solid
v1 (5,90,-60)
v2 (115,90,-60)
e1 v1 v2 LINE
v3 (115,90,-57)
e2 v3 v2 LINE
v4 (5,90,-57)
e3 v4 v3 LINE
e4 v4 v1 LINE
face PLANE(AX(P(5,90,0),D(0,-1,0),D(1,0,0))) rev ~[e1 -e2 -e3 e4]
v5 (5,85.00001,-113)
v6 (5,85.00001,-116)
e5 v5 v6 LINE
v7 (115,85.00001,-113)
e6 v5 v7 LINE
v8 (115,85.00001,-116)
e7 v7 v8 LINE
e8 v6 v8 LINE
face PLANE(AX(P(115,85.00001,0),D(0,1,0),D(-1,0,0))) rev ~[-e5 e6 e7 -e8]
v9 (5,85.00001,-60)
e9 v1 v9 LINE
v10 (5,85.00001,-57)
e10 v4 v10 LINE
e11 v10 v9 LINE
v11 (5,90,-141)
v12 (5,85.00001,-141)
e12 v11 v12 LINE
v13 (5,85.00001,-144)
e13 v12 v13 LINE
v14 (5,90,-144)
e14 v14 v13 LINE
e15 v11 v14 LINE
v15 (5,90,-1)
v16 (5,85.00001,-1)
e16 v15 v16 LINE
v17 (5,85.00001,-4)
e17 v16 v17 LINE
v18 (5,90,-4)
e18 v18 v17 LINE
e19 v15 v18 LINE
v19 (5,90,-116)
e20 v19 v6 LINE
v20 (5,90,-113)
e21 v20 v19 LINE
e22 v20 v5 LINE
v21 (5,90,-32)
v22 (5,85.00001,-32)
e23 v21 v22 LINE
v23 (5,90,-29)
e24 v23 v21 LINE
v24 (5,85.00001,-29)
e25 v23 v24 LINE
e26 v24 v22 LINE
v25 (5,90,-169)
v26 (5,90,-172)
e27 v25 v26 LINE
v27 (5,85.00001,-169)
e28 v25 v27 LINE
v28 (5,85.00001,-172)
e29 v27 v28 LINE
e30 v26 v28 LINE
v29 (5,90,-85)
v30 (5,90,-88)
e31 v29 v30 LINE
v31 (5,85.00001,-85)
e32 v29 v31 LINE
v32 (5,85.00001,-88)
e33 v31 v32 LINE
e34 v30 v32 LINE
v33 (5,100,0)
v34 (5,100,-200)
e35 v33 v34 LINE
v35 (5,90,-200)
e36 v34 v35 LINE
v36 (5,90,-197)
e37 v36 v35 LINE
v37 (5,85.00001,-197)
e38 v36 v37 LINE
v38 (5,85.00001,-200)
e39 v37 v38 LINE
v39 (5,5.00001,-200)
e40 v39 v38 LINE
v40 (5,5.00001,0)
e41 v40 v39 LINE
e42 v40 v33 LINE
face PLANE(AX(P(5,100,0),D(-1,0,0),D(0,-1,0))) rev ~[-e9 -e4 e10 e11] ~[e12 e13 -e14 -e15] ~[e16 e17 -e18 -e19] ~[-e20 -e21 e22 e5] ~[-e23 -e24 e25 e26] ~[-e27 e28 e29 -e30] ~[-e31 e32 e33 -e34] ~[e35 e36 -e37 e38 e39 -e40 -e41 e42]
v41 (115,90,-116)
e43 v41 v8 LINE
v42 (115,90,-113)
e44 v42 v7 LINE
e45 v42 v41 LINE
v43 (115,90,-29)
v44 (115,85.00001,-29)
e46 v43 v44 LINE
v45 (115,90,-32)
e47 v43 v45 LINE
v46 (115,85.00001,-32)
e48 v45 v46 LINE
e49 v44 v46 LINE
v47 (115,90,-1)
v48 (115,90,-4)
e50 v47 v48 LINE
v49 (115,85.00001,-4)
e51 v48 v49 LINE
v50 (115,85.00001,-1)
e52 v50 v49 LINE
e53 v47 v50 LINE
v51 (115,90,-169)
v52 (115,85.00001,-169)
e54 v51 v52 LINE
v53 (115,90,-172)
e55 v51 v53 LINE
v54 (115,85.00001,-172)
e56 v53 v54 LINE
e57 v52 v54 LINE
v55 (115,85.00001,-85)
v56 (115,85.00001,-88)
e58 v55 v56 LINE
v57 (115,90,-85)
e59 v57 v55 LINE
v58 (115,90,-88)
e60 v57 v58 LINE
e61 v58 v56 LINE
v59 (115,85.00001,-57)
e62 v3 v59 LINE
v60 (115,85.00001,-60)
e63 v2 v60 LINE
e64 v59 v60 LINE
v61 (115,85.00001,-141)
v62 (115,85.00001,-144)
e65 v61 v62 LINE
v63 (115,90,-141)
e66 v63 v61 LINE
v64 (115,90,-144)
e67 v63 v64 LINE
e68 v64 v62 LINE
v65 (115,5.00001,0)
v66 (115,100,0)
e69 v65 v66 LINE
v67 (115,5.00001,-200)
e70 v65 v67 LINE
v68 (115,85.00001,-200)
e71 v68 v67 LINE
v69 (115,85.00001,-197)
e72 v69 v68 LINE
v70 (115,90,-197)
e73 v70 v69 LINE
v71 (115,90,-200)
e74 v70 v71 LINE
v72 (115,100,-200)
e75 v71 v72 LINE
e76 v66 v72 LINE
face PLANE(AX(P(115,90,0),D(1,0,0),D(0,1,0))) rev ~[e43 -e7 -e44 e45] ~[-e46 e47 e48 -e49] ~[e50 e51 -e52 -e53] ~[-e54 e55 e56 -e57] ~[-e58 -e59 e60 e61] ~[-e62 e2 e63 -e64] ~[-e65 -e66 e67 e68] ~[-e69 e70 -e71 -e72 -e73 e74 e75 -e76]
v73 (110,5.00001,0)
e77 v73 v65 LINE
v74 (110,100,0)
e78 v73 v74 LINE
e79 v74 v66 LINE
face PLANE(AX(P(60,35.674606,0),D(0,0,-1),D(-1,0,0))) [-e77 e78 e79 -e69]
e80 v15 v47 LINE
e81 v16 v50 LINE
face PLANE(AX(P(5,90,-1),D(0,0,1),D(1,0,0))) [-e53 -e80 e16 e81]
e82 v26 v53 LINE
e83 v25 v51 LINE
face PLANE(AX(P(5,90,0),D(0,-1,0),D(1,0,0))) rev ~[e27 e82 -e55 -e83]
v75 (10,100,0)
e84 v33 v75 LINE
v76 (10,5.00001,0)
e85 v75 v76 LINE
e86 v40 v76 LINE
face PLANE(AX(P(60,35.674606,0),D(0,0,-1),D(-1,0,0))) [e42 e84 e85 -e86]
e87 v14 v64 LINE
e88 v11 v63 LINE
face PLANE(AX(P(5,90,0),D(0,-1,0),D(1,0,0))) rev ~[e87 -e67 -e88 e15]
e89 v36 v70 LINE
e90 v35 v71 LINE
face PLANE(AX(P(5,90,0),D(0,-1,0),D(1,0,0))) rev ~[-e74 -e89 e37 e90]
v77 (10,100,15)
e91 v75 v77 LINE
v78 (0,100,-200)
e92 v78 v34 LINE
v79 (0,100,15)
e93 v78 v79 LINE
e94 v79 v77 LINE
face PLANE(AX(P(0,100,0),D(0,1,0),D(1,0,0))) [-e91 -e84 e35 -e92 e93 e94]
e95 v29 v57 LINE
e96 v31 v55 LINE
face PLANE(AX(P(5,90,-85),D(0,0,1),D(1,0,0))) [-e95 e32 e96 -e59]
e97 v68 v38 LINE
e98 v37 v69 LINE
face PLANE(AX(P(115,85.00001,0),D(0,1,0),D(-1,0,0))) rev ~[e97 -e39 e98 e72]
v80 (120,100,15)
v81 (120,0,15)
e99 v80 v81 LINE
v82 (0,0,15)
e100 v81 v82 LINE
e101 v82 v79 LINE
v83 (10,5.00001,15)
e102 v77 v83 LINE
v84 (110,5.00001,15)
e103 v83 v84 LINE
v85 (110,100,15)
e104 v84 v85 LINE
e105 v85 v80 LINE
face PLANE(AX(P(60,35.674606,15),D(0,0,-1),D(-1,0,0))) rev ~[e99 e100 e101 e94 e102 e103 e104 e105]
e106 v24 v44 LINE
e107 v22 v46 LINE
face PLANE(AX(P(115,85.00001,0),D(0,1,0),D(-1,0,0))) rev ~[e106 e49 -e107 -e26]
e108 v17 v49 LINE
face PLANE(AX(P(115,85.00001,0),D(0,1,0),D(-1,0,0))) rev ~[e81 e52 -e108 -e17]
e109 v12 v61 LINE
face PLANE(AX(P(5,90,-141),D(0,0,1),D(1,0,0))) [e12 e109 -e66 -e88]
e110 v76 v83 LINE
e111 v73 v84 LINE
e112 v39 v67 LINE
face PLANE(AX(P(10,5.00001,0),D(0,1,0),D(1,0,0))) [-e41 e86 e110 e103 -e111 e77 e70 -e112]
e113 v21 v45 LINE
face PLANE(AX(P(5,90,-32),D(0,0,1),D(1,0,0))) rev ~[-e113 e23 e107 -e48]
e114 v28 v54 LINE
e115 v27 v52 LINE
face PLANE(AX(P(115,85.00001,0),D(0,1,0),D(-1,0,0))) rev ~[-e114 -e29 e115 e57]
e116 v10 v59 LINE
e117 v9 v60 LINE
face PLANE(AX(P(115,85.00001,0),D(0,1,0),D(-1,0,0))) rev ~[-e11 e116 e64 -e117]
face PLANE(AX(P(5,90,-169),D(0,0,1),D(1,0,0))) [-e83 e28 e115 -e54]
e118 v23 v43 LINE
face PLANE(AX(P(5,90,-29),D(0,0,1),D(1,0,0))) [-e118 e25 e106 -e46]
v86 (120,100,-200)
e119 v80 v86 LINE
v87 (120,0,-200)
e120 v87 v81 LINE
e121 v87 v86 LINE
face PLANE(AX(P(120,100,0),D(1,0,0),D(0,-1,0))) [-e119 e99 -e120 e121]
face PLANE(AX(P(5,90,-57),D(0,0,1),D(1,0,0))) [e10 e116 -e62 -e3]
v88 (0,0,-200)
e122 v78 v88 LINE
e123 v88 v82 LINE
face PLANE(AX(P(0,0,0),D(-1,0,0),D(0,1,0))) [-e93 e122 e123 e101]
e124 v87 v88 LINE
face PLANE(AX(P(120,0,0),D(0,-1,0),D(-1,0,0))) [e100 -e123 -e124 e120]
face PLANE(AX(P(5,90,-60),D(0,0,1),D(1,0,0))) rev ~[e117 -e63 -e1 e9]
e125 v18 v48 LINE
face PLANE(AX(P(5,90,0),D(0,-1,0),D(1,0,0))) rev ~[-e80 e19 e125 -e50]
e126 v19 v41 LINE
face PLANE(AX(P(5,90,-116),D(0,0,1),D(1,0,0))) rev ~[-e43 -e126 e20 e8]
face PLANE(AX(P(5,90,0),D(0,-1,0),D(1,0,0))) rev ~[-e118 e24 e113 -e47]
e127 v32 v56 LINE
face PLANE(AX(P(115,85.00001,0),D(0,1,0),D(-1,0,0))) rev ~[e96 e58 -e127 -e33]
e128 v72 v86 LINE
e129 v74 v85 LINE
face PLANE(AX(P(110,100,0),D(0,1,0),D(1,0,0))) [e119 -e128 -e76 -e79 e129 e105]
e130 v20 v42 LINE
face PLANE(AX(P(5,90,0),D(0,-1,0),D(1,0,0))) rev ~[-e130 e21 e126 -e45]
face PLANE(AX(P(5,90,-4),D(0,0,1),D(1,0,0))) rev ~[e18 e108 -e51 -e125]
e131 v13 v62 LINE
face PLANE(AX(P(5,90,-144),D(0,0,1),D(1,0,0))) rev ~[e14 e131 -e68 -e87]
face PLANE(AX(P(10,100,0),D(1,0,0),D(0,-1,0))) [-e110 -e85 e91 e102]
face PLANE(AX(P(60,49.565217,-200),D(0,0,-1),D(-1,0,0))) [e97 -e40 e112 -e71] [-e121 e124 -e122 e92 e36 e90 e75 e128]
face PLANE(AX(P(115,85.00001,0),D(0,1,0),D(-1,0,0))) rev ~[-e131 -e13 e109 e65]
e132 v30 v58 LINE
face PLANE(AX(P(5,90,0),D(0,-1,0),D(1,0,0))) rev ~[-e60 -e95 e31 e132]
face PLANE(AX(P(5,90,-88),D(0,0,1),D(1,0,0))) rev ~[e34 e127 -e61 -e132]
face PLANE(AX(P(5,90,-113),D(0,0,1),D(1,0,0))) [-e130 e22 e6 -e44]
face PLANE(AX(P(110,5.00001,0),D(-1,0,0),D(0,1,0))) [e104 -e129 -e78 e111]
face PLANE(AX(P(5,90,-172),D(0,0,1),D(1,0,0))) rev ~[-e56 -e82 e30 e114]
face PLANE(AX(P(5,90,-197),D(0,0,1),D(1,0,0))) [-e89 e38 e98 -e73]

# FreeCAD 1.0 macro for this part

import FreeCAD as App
import Part
import Sketcher
from FreeCAD import Vector


def add_polygon(sketch, points):
    """Adds a closed chain of lines whose ends are joined by coincident constraints."""
    first, n = sketch.GeometryCount, len(points)
    for a, b in zip(points, points[1:] + points[:1]):
        sketch.addGeometry(Part.LineSegment(App.Vector(*a, 0), App.Vector(*b, 0)), False)
    for i in range(n):
        sketch.addConstraint(Sketcher.Constraint("Coincident", first + i, 2, first + (i + 1) % n, 1))

doc = App.newDocument("Part")
params = doc.addObject("Spreadsheet::Sheet", "Params")
for row, (alias, value) in enumerate([
    ("sketch1_width", "110 mm"),
    ("sketch1_width2", "5 mm"),
    ("sketch1_height", "10 mm"),
    ("sketch1_height2", "100 mm"),
    ("sketch1_height3", "80 mm"),
    ("pad1_length", "200 mm"),
    ("sketch2_width", "110 mm"),
    ("sketch2_height", "25 mm"),
    ("pocket1_length", "50 mm"),
    ("sketch3_width", "10 mm"),
    ("sketch3_width2", "120 mm"),
    ("pad2_length", "15 mm"),
], start=1):
    params.set(f"A{row}", alias)
    params.set(f"B{row}", "=" + value)
    params.setAlias(f"B{row}", alias)

body = doc.addObject("PartDesign::Body", "Body")

sketch1 = body.newObject("Sketcher::SketchObject", "Sketch")
sketch1.AttachmentSupport = (doc.getObject("XY_Plane"), [""])
sketch1.MapMode = "FlatFace"
add_polygon(sketch1, [(115, 100), (115, 90), (5, 90), (5, 100), (0, 100), (0, 0), (120, 0), (120, 100)])
add_polygon(sketch1, [(115, 5.00001), (5, 5.00001), (5, 85.00001), (115, 85.00001)])
sketch1.addConstraint([
    Sketcher.Constraint("Vertical", 0),
    Sketcher.Constraint("Horizontal", 1),
    Sketcher.Constraint("Vertical", 2),
    Sketcher.Constraint("Horizontal", 3),
    Sketcher.Constraint("Vertical", 4),
    Sketcher.Constraint("Horizontal", 5),
    Sketcher.Constraint("Vertical", 6),
    Sketcher.Constraint("Horizontal", 7),
    Sketcher.Constraint("Horizontal", 8),
    Sketcher.Constraint("Vertical", 9),
    Sketcher.Constraint("Horizontal", 10),
    Sketcher.Constraint("Vertical", 11),
    Sketcher.Constraint("Coincident", 4, 2, -1, 1),
    Sketcher.Constraint("Horizontal", 3, 2, 6, 2),
    Sketcher.Constraint("Vertical", 2, 2, 8, 2),
    Sketcher.Constraint("Vertical", 7, 2, 10, 2),
    Sketcher.Constraint("Equal", 3, 7),
    Sketcher.Constraint("DistanceX", 1, 2, 1, 1, 110.0),
    Sketcher.Constraint("DistanceX", 3, 2, 3, 1, 5.0),
    Sketcher.Constraint("DistanceY", 0, 2, 0, 1, 10.0),
    Sketcher.Constraint("DistanceY", 4, 2, 4, 1, 100.0),
    Sketcher.Constraint("DistanceY", 9, 1, 9, 2, 80.0),
    Sketcher.Constraint("DistanceY", -1, 1, 8, 2, 5.00001),
])
sketch1.setExpression("Constraints[29]", "Params.sketch1_width")
sketch1.setExpression("Constraints[30]", "Params.sketch1_width2")
sketch1.setExpression("Constraints[31]", "Params.sketch1_height")
sketch1.setExpression("Constraints[32]", "Params.sketch1_height2")
sketch1.setExpression("Constraints[33]", "Params.sketch1_height3")
pad1 = body.newObject("PartDesign::Pad", "Pad")
pad1.Profile = sketch1
pad1.setExpression("Length", "Params.pad1_length")
pad1.Reversed = True

sketch2 = body.newObject("Sketcher::SketchObject", "Sketch001")
sketch2.AttachmentSupport = (doc.getObject("XZ_Plane"), [""])
sketch2.MapMode = "FlatFace"
sketch2.AttachmentOffset = App.Placement(Vector(0, 0, -90), App.Rotation())
add_polygon(sketch2, [(5, -197), (5, -172), (115, -172), (115, -197)])
add_polygon(sketch2, [(5, -169), (5, -144), (115, -144), (115, -169)])
add_polygon(sketch2, [(5, -141), (5, -116), (115, -116), (115, -141)])
add_polygon(sketch2, [(5, -113), (5, -88), (115, -88), (115, -113)])
add_polygon(sketch2, [(5, -85), (5, -60), (115, -60), (115, -85)])
add_polygon(sketch2, [(5, -57), (5, -32), (115, -32), (115, -57)])
add_polygon(sketch2, [(5, -29), (5, -4), (115, -4), (115, -29)])
add_polygon(sketch2, [(5, -1), (5, 24), (115, 24), (115, -1)])
sketch2.addConstraint([
    Sketcher.Constraint("Vertical", 0),
    Sketcher.Constraint("Horizontal", 1),
    Sketcher.Constraint("Vertical", 2),
    Sketcher.Constraint("Horizontal", 3),
    Sketcher.Constraint("Vertical", 4),
    Sketcher.Constraint("Horizontal", 5),
    Sketcher.Constraint("Vertical", 6),
    Sketcher.Constraint("Horizontal", 7),
    Sketcher.Constraint("Vertical", 8),
    Sketcher.Constraint("Horizontal", 9),
    Sketcher.Constraint("Vertical", 10),
    Sketcher.Constraint("Horizontal", 11),
    Sketcher.Constraint("Vertical", 12),
    Sketcher.Constraint("Horizontal", 13),
    Sketcher.Constraint("Vertical", 14),
    Sketcher.Constraint("Horizontal", 15),
    Sketcher.Constraint("Vertical", 16),
    Sketcher.Constraint("Horizontal", 17),
    Sketcher.Constraint("Vertical", 18),
    Sketcher.Constraint("Horizontal", 19),
    Sketcher.Constraint("Vertical", 20),
    Sketcher.Constraint("Horizontal", 21),
    Sketcher.Constraint("Vertical", 22),
    Sketcher.Constraint("Horizontal", 23),
    Sketcher.Constraint("Vertical", 24),
    Sketcher.Constraint("Horizontal", 25),
    Sketcher.Constraint("Vertical", 26),
    Sketcher.Constraint("Horizontal", 27),
    Sketcher.Constraint("Vertical", 28),
    Sketcher.Constraint("Horizontal", 29),
    Sketcher.Constraint("Vertical", 30),
    Sketcher.Constraint("Horizontal", 31),
    Sketcher.Constraint("Vertical", 3, 2, 4, 2),
    Sketcher.Constraint("Vertical", 2, 2, 5, 2),
    Sketcher.Constraint("Vertical", 7, 2, 8, 2),
    Sketcher.Constraint("Vertical", 6, 2, 9, 2),
    Sketcher.Constraint("Vertical", 11, 2, 12, 2),
    Sketcher.Constraint("Vertical", 10, 2, 13, 2),
    Sketcher.Constraint("Vertical", 15, 2, 16, 2),
    Sketcher.Constraint("Vertical", 14, 2, 17, 2),
    Sketcher.Constraint("Vertical", 19, 2, 20, 2),
    Sketcher.Constraint("Vertical", 18, 2, 21, 2),
    Sketcher.Constraint("Vertical", 23, 2, 24, 2),
    Sketcher.Constraint("Vertical", 22, 2, 25, 2),
    Sketcher.Constraint("Vertical", 27, 2, 28, 2),
    Sketcher.Constraint("Vertical", 26, 2, 29, 2),
    Sketcher.Constraint("Equal", 2, 4),
    Sketcher.Constraint("Equal", 6, 8),
    Sketcher.Constraint("Equal", 10, 12),
    Sketcher.Constraint("Equal", 14, 16),
    Sketcher.Constraint("Equal", 18, 20),
    Sketcher.Constraint("Equal", 22, 24),
    Sketcher.Constraint("Equal", 26, 28),
    Sketcher.Constraint("DistanceX", 1, 1, 1, 2, 110.0),
    Sketcher.Constraint("DistanceY", 0, 1, 0, 2, 25.0),
    Sketcher.Constraint("DistanceX", -1, 1, 0, 2, 5.0),
    Sketcher.Constraint("DistanceY", 0, 2, -1, 1, 172.0),
    Sketcher.Constraint("DistanceY", 4, 2, -1, 1, 144.0),
    Sketcher.Constraint("DistanceY", 8, 2, -1, 1, 116.0),
    Sketcher.Constraint("DistanceY", 12, 2, -1, 1, 88.0),
    Sketcher.Constraint("DistanceY", 16, 2, -1, 1, 60.0),
    Sketcher.Constraint("DistanceY", 20, 2, -1, 1, 32.0),
    Sketcher.Constraint("DistanceY", 24, 2, -1, 1, 4.0),
    Sketcher.Constraint("DistanceY", -1, 1, 28, 2, 24.0),
])
sketch2.setExpression("Constraints[85]", "Params.sketch2_width")
sketch2.setExpression("Constraints[86]", "Params.sketch2_height")
pocket1 = body.newObject("PartDesign::Pocket", "Pocket")
pocket1.Profile = sketch2
pocket1.setExpression("Length", "Params.pocket1_length")
pocket1.Reversed = True

sketch3 = body.newObject("Sketcher::SketchObject", "Sketch002")
sketch3.AttachmentSupport = (doc.getObject("XY_Plane"), [""])
sketch3.MapMode = "FlatFace"
add_polygon(sketch3, [(10, 100), (0, 100), (0, 0), (120, 0), (120, 100), (110, 100), (110, 5.00001), (10, 5.00001)])
sketch3.addConstraint([
    Sketcher.Constraint("Horizontal", 0),
    Sketcher.Constraint("Vertical", 1),
    Sketcher.Constraint("Horizontal", 2),
    Sketcher.Constraint("Vertical", 3),
    Sketcher.Constraint("Horizontal", 4),
    Sketcher.Constraint("Vertical", 5),
    Sketcher.Constraint("Horizontal", 6),
    Sketcher.Constraint("Vertical", 7),
    Sketcher.Constraint("Coincident", 1, 2, -1, 1),
    Sketcher.Constraint("Horizontal", 0, 2, 3, 2),
    Sketcher.Constraint("Equal", 0, 4),
    Sketcher.Constraint("Equal", 6, 1),
    Sketcher.Constraint("DistanceX", 0, 2, 0, 1, 10.0),
    Sketcher.Constraint("DistanceX", 2, 1, 2, 2, 120.0),
    Sketcher.Constraint("DistanceY", 5, 2, 5, 1, 94.99999),
])
sketch3.setExpression("Constraints[20]", "Params.sketch3_width")
sketch3.setExpression("Constraints[21]", "Params.sketch3_width2")
pad2 = body.newObject("PartDesign::Pad", "Pad001")
pad2.Profile = sketch3
pad2.setExpression("Length", "Params.pad2_length")

doc.recompute()
